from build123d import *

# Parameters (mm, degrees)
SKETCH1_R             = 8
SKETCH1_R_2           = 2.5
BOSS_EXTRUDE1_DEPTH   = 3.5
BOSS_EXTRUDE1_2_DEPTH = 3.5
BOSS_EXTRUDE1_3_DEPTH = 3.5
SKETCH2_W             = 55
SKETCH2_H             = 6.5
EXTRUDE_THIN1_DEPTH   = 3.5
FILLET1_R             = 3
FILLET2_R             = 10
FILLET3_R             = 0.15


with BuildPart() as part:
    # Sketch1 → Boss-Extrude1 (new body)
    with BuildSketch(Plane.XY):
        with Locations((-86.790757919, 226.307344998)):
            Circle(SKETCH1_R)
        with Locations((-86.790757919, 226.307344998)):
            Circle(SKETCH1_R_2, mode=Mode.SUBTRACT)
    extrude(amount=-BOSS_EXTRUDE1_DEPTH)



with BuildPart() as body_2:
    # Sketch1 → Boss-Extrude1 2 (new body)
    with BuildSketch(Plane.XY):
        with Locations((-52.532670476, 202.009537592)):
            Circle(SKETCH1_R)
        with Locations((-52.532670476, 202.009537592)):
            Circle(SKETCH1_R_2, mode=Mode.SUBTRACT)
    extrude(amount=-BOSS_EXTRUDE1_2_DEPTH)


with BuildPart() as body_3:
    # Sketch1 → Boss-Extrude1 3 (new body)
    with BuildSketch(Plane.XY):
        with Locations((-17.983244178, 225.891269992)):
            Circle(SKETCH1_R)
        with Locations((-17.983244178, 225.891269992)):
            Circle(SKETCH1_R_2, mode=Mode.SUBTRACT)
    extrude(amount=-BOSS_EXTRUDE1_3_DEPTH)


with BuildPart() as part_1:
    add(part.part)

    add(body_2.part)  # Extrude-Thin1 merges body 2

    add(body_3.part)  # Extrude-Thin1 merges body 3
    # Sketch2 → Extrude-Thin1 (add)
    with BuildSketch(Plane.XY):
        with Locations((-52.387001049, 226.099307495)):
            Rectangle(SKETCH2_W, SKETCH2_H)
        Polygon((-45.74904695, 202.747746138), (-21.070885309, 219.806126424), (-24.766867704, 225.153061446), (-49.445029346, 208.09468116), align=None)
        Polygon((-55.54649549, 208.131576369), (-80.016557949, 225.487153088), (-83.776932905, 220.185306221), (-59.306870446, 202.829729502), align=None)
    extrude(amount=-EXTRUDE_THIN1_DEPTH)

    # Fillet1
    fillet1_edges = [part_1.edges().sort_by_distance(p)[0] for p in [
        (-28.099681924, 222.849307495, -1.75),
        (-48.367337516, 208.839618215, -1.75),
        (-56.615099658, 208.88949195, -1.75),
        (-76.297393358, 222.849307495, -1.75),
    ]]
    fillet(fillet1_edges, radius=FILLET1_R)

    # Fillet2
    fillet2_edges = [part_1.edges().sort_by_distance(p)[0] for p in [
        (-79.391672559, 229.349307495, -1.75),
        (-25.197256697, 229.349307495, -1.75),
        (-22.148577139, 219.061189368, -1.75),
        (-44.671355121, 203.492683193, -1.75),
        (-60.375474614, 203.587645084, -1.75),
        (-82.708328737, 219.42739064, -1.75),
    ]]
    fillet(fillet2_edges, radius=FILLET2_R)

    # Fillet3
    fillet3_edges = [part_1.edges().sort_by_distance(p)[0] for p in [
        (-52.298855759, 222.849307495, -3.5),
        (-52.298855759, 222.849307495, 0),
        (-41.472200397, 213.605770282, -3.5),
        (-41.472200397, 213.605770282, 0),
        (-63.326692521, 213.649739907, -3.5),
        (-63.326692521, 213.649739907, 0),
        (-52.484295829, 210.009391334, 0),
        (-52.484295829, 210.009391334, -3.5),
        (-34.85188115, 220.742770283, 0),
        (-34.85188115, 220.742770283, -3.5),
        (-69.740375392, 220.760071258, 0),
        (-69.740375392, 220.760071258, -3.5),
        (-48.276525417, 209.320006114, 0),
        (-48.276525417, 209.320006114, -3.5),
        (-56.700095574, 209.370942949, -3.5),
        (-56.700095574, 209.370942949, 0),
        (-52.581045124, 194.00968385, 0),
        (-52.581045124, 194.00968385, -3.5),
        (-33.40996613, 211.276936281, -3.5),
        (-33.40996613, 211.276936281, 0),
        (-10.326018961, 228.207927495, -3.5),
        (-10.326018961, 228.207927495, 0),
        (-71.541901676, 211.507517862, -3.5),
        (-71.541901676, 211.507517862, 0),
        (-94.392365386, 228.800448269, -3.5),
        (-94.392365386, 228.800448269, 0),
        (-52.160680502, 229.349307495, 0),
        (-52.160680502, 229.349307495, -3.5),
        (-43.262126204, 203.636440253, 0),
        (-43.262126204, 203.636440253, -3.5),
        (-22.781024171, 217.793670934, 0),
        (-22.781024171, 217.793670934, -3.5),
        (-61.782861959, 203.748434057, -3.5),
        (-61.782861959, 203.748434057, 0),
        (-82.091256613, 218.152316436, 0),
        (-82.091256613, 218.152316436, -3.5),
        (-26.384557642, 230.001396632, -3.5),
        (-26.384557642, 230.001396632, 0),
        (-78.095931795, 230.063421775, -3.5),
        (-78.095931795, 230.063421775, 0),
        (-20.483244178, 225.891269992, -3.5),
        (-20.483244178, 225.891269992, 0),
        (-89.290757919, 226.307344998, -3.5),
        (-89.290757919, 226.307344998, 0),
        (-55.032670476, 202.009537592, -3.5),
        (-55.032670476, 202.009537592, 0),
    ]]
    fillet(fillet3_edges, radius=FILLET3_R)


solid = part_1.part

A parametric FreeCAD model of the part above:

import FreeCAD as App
import Part
import Sketcher
Q = App.Units.Quantity


def edges_at(feature, points):
    """Names of the edges that pass closest to the given points."""
    edges = feature.Shape.Edges
    near = lambda p: min(range(len(edges)), key=lambda i: edges[i].distToShape(Part.Vertex(*p))[0])
    return sorted({f"Edge{near(p) + 1}" for p in points})

doc = App.newDocument("Part")
body = doc.addObject("PartDesign::Body", "Body")

sketch1 = body.newObject("Sketcher::SketchObject", "Sketch")
sketch1.AttachmentSupport = (doc.getObject("XY_Plane"), [""])
sketch1.MapMode = "FlatFace"
sketch1.addGeometry(Part.Circle(App.Vector(-86.790758, 226.307345, 0), App.Vector(0, 0, 1), 8), False)
sketch1.addGeometry(Part.Circle(App.Vector(-86.790758, 226.307345, 0), App.Vector(0, 0, 1), 2.5), False)
sketch1.addConstraint(Sketcher.Constraint("Coincident", 1, 3, 0, 3))
sketch1.addConstraint(Sketcher.Constraint("Diameter", 0, Q("16 mm")))
sketch1.addConstraint(Sketcher.Constraint("Diameter", 1, Q("5 mm")))
sketch1.addConstraint(Sketcher.Constraint("DistanceX", 0, 3, -1, 1, Q("86.790758 mm")))
sketch1.addConstraint(Sketcher.Constraint("DistanceY", -1, 1, 0, 3, Q("226.307345 mm")))
pad1 = body.newObject("PartDesign::Pad", "Pad")
pad1.Profile = sketch1
pad1.Length = 3.5
pad1.Reversed = True
body2 = doc.addObject("PartDesign::Body", "Body001")

sketch2 = body2.newObject("Sketcher::SketchObject", "Sketch001")
sketch2.AttachmentSupport = (doc.getObject("XY_Plane001"), [""])
sketch2.MapMode = "FlatFace"
sketch2.addGeometry(Part.Circle(App.Vector(-52.53267, 202.009538, 0), App.Vector(0, 0, 1), 8), False)
sketch2.addGeometry(Part.Circle(App.Vector(-52.53267, 202.009538, 0), App.Vector(0, 0, 1), 2.5), False)
sketch2.addConstraint(Sketcher.Constraint("Coincident", 1, 3, 0, 3))
sketch2.addConstraint(Sketcher.Constraint("Diameter", 0, Q("16 mm")))
sketch2.addConstraint(Sketcher.Constraint("Diameter", 1, Q("5 mm")))
sketch2.addConstraint(Sketcher.Constraint("DistanceX", 0, 3, -1, 1, Q("52.53267 mm")))
sketch2.addConstraint(Sketcher.Constraint("DistanceY", -1, 1, 0, 3, Q("202.009538 mm")))
pad2 = body2.newObject("PartDesign::Pad", "Pad001")
pad2.Profile = sketch2
pad2.Length = 3.5
pad2.Reversed = True
body3 = doc.addObject("PartDesign::Body", "Body002")

sketch3 = body3.newObject("Sketcher::SketchObject", "Sketch002")
sketch3.AttachmentSupport = (doc.getObject("XY_Plane002"), [""])
sketch3.MapMode = "FlatFace"
sketch3.addGeometry(Part.Circle(App.Vector(-17.983244, 225.89127, 0), App.Vector(0, 0, 1), 8), False)
sketch3.addGeometry(Part.Circle(App.Vector(-17.983244, 225.89127, 0), App.Vector(0, 0, 1), 2.5), False)
sketch3.addConstraint(Sketcher.Constraint("Coincident", 1, 3, 0, 3))
sketch3.addConstraint(Sketcher.Constraint("Diameter", 0, Q("16 mm")))
sketch3.addConstraint(Sketcher.Constraint("Diameter", 1, Q("5 mm")))
sketch3.addConstraint(Sketcher.Constraint("DistanceY", -1, 1, 0, 3, Q("225.89127 mm")))
sketch3.addConstraint(Sketcher.Constraint("DistanceX", 0, 3, -1, 1, Q("17.983244 mm")))
pad3 = body3.newObject("PartDesign::Pad", "Pad002")
pad3.Profile = sketch3
pad3.Length = 3.5
pad3.Reversed = True
body.AllowCompound = True
doc.recompute()

boolean = body.newObject("PartDesign::Boolean", "Boolean")
boolean.Type = "Fuse"
boolean.addObjects([body2])
doc.recompute()

boolean2 = body.newObject("PartDesign::Boolean", "Boolean001")
boolean2.Type = "Fuse"
boolean2.addObjects([body3])

sketch4 = body.newObject("Sketcher::SketchObject", "Sketch003")
sketch4.AttachmentSupport = (doc.getObject("XY_Plane"), [""])
sketch4.MapMode = "FlatFace"
sketch4.addGeometry(Part.LineSegment(App.Vector(-59.30687, 202.82973, 0), App.Vector(-55.546495, 208.131576, 0)), False)
sketch4.addGeometry(Part.LineSegment(App.Vector(-55.546495, 208.131576, 0), App.Vector(-76.297393, 222.849307, 0)), False)
sketch4.addGeometry(Part.LineSegment(App.Vector(-76.297393, 222.849307, 0), App.Vector(-28.099682, 222.849307, 0)), False)
sketch4.addGeometry(Part.LineSegment(App.Vector(-28.099682, 222.849307, 0), App.Vector(-49.445029, 208.094681, 0)), False)
sketch4.addGeometry(Part.LineSegment(App.Vector(-49.445029, 208.094681, 0), App.Vector(-45.749047, 202.747746, 0)), False)
sketch4.addGeometry(Part.LineSegment(App.Vector(-45.749047, 202.747746, 0), App.Vector(-21.070885, 219.806126, 0)), False)
sketch4.addGeometry(Part.LineSegment(App.Vector(-21.070885, 219.806126, 0), App.Vector(-24.766868, 225.153061, 0)), False)
sketch4.addGeometry(Part.LineSegment(App.Vector(-24.766868, 225.153061, 0), App.Vector(-24.887001, 225.070021, 0)), False)
sketch4.addGeometry(Part.LineSegment(App.Vector(-24.887001, 225.070021, 0), App.Vector(-24.887001, 229.349307, 0)), False)
sketch4.addGeometry(Part.LineSegment(App.Vector(-24.887001, 229.349307, 0), App.Vector(-79.887001, 229.349307, 0)), False)
sketch4.addGeometry(Part.LineSegment(App.Vector(-79.887001, 229.349307, 0), App.Vector(-79.887001, 225.395264, 0)), False)
sketch4.addGeometry(Part.LineSegment(App.Vector(-79.887001, 225.395264, 0), App.Vector(-80.016558, 225.487153, 0)), False)
sketch4.addGeometry(Part.LineSegment(App.Vector(-80.016558, 225.487153, 0), App.Vector(-83.776933, 220.185306, 0)), False)
sketch4.addGeometry(Part.LineSegment(App.Vector(-83.776933, 220.185306, 0), App.Vector(-59.30687, 202.82973, 0)), False)
sketch4.addConstraint(Sketcher.Constraint("Coincident", 0, 2, 1, 1))
sketch4.addConstraint(Sketcher.Constraint("Coincident", 1, 2, 2, 1))
sketch4.addConstraint(Sketcher.Constraint("Coincident", 2, 2, 3, 1))
sketch4.addConstraint(Sketcher.Constraint("Coincident", 3, 2, 4, 1))
sketch4.addConstraint(Sketcher.Constraint("Coincident", 4, 2, 5, 1))
sketch4.addConstraint(Sketcher.Constraint("Coincident", 5, 2, 6, 1))
sketch4.addConstraint(Sketcher.Constraint("Coincident", 6, 2, 7, 1))
sketch4.addConstraint(Sketcher.Constraint("Coincident", 7, 2, 8, 1))
sketch4.addConstraint(Sketcher.Constraint("Coincident", 8, 2, 9, 1))
sketch4.addConstraint(Sketcher.Constraint("Coincident", 9, 2, 10, 1))
sketch4.addConstraint(Sketcher.Constraint("Coincident", 10, 2, 11, 1))
sketch4.addConstraint(Sketcher.Constraint("Coincident", 11, 2, 12, 1))
sketch4.addConstraint(Sketcher.Constraint("Coincident", 12, 2, 13, 1))
sketch4.addConstraint(Sketcher.Constraint("Coincident", 13, 2, 0, 1))
sketch4.addConstraint(Sketcher.Constraint("Horizontal", 2))
sketch4.addConstraint(Sketcher.Constraint("Vertical", 8))
sketch4.addConstraint(Sketcher.Constraint("Horizontal", 9))
sketch4.addConstraint(Sketcher.Constraint("Vertical", 10))
sketch4.addConstraint(Sketcher.Constraint("Perpendicular", 0, 1))
sketch4.addConstraint(Sketcher.Constraint("Perpendicular", 3, 4))
sketch4.addConstraint(Sketcher.Constraint("Perpendicular", 4, 5))
sketch4.addConstraint(Sketcher.Constraint("Perpendicular", 5, 6))
sketch4.addConstraint(Sketcher.Constraint("Perpendicular", 6, 7))
sketch4.addConstraint(Sketcher.Constraint("Parallel", 1, 11))
sketch4.addConstraint(Sketcher.Constraint("Perpendicular", 11, 12))
sketch4.addConstraint(Sketcher.Constraint("Perpendicular", 12, 13))
sketch4.addConstraint(Sketcher.Constraint("Equal", 0, 4))
sketch4.addConstraint(Sketcher.Constraint("Equal", 4, 6))
sketch4.addConstraint(Sketcher.Constraint("Equal", 6, 12))
sketch4.addConstraint(Sketcher.Constraint("Equal", 5, 13))
sketch4.addConstraint(Sketcher.Constraint("DistanceX", 9, 2, 9, 1, Q("55 mm")))
sketch4.addConstraint(Sketcher.Constraint("Distance", 5, Q("30 mm")))
sketch4.addConstraint(Sketcher.Constraint("Distance", 0, Q("6.5 mm")))
sketch4.addConstraint(Sketcher.Constraint("DistanceY", 2, 2, 8, 2, Q("6.5 mm")))
sketch4.addConstraint(Sketcher.Constraint("DistanceX", 7, 2, -1, 1, Q("24.887001 mm")))
sketch4.addConstraint(Sketcher.Constraint("DistanceY", 12, 2, 1, 2, Q("2.664001 mm")))
sketch4.addConstraint(Sketcher.Constraint("DistanceX", 2, 1, 2, 2, Q("48.197711 mm")))
sketch4.addConstraint(Sketcher.Constraint("Distance", 1, Q("25.440349 mm")))
sketch4.addConstraint(Sketcher.Constraint("Distance", 7, Q("0.14604 mm")))
sketch4.addConstraint(Sketcher.Constraint("DistanceY", 8, 1, 8, 2, Q("4.279286 mm")))
sketch4.addConstraint(Sketcher.Constraint("DistanceY", 10, 2, 10, 1, Q("3.954044 mm")))
sketch4.addConstraint(Sketcher.Constraint("DistanceY", -1, 1, 3, 2, Q("208.094681 mm")))
pad4 = body.newObject("PartDesign::Pad", "Pad003")
pad4.Profile = sketch4
pad4.Length = 3.5
pad4.Reversed = True
doc.recompute()

fillet = body.newObject("PartDesign::Fillet", "Fillet")
fillet.Base = (pad4, edges_at(pad4, [
    (-28.1, 222.849, -1.75),
    (-48.367, 208.84, -1.75),
    (-56.615, 208.889, -1.75),
    (-76.297, 222.849, -1.75),
]))
fillet.Radius = 3
doc.recompute()

fillet2 = body.newObject("PartDesign::Fillet", "Fillet001")
fillet2.Base = (fillet, edges_at(fillet, [
    (-79.392, 229.349, -1.75),
    (-25.197, 229.349, -1.75),
    (-22.149, 219.061, -1.75),
    (-44.671, 203.493, -1.75),
    (-60.375, 203.588, -1.75),
    (-82.708, 219.427, -1.75),
]))
fillet2.Radius = 10
doc.recompute()

fillet3 = body.newObject("PartDesign::Fillet", "Fillet002")
fillet3.Base = (fillet2, edges_at(fillet2, [
    (-52.299, 222.849, -3.5),
    (-52.299, 222.849, 0),
    (-41.472, 213.606, -3.5),
    (-41.472, 213.606, 0),
    (-63.327, 213.65, -3.5),
    (-63.327, 213.65, 0),
    (-52.484, 210.009, 0),
    (-52.484, 210.009, -3.5),
    (-34.852, 220.743, 0),
    (-34.852, 220.743, -3.5),
    (-69.74, 220.76, 0),
    (-69.74, 220.76, -3.5),
    (-48.277, 209.32, 0),
    (-48.277, 209.32, -3.5),
    (-56.7, 209.371, -3.5),
    (-56.7, 209.371, 0),
    (-52.581, 194.01, 0),
    (-52.581, 194.01, -3.5),
    (-33.41, 211.277, -3.5),
    (-33.41, 211.277, 0),
    (-10.326, 228.208, -3.5),
    (-10.326, 228.208, 0),
    (-71.542, 211.508, -3.5),
    (-71.542, 211.508, 0),
    (-94.392, 228.8, -3.5),
    (-94.392, 228.8, 0),
    (-52.161, 229.349, 0),
    (-52.161, 229.349, -3.5),
    (-43.262, 203.636, 0),
    (-43.262, 203.636, -3.5),
    (-22.781, 217.794, 0),
    (-22.781, 217.794, -3.5),
    (-61.783, 203.748, -3.5),
    (-61.783, 203.748, 0),
    (-82.091, 218.152, 0),
    (-82.091, 218.152, -3.5),
    (-26.385, 230.001, -3.5),
    (-26.385, 230.001, 0),
    (-78.096, 230.063, -3.5),
    (-78.096, 230.063, 0),
    (-20.483, 225.891, -3.5),
    (-20.483, 225.891, 0),
    (-89.291, 226.307, -3.5),
    (-89.291, 226.307, 0),
    (-55.033, 202.01, -3.5),
    (-55.033, 202.01, 0),
]))
fillet3.Radius = 0.15

doc.recompute()
